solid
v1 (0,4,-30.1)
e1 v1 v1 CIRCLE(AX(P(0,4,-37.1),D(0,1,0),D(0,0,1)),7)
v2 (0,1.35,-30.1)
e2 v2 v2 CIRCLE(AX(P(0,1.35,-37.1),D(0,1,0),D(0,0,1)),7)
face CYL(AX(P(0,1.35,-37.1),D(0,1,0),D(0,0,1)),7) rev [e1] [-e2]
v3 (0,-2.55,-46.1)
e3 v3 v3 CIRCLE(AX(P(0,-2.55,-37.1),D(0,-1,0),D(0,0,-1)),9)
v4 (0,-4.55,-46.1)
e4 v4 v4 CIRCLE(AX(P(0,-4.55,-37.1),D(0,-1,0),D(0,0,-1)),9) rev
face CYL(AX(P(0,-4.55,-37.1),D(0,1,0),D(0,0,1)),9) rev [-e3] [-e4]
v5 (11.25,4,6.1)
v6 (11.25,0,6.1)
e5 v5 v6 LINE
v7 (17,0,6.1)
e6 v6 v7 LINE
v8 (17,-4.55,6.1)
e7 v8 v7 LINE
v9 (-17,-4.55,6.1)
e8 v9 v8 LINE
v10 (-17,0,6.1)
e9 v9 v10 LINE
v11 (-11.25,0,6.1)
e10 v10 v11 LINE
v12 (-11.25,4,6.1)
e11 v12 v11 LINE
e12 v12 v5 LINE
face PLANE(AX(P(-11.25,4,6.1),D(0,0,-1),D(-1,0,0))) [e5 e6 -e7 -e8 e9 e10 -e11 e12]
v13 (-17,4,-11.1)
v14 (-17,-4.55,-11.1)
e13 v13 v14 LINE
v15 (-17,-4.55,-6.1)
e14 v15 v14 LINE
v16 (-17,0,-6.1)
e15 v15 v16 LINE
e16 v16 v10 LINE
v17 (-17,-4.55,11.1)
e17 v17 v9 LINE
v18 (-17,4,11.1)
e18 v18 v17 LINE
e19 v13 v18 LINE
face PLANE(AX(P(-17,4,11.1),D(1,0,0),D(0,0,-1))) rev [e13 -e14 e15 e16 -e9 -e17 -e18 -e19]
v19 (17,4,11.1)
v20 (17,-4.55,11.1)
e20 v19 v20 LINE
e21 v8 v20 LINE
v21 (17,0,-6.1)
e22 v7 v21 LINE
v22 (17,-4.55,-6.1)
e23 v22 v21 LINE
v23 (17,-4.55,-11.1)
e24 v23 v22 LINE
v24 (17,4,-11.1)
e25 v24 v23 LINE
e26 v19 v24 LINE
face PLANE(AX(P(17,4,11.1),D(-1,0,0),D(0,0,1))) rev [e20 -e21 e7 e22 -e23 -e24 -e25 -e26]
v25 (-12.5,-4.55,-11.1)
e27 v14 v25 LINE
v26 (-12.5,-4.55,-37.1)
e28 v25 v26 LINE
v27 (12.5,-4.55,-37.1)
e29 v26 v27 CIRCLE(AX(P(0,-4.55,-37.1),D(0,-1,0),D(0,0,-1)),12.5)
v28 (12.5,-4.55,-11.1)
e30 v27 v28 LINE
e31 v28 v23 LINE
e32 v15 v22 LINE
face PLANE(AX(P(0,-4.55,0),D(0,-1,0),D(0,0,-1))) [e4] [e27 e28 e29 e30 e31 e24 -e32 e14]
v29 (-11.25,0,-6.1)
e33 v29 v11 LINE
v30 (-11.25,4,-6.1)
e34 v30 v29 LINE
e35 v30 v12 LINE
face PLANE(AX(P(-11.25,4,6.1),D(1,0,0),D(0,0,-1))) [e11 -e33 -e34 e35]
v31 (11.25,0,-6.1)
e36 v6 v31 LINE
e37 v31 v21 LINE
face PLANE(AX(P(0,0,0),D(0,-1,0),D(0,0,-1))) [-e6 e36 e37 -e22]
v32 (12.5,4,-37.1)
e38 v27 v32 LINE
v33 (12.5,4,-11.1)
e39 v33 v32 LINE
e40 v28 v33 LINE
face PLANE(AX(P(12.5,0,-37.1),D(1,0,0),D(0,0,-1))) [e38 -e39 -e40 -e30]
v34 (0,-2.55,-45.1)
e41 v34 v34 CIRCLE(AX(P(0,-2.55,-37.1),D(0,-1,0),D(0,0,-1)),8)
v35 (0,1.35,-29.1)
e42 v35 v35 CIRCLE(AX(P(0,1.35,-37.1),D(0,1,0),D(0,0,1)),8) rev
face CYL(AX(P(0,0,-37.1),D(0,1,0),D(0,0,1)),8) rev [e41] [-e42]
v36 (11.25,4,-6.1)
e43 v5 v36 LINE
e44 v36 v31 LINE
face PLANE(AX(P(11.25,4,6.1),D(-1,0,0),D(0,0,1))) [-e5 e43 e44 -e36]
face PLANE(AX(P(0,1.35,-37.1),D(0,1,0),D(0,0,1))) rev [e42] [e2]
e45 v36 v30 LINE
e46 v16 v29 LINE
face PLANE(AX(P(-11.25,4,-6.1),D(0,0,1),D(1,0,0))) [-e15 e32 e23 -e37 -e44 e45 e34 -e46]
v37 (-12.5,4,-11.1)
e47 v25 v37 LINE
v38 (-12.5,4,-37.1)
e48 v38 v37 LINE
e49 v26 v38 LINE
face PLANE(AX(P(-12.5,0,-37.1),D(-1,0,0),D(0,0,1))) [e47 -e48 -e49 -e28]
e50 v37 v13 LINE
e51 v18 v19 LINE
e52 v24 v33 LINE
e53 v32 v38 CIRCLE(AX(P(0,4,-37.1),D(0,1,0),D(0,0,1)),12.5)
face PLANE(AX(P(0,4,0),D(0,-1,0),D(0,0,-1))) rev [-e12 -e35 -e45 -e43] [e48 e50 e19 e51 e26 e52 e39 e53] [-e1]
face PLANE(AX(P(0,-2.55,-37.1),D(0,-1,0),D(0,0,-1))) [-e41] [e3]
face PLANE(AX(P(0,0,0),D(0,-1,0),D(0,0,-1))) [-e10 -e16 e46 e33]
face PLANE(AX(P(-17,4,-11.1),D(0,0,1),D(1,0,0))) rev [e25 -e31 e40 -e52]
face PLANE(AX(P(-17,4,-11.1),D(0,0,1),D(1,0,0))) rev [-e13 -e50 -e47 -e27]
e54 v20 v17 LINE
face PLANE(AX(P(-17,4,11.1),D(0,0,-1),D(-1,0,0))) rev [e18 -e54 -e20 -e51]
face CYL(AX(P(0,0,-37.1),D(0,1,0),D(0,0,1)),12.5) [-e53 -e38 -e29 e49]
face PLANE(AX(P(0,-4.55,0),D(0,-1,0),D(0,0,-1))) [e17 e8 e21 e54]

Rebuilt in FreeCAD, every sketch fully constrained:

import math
import FreeCAD as App
import Part
import Sketcher
Q = App.Units.Quantity

doc = App.newDocument("Part")
body = doc.addObject("PartDesign::Body", "Body")

# Sketch on XZ plane
sketch1 = doc.addObject("Sketcher::SketchObject", "Sketch")
body.addObject(sketch1)
sketch1.AttachmentSupport = (doc.XZ_Plane, [""])
sketch1.MapMode = "FlatFace"
sketch1.addGeometry([
    Part.LineSegment(App.Vector(-17, -11, 0), App.Vector(-17, 11, 0)),  # 0
    Part.LineSegment(App.Vector(-17, 11, 0), App.Vector(17, 11, 0)),  # 1
    Part.LineSegment(App.Vector(17, 11, 0), App.Vector(17, -11, 0)),  # 2
    Part.LineSegment(App.Vector(17, -11, 0), App.Vector(-17, -11, 0)),  # 3
    Part.LineSegment(App.Vector(11, 6, 0), App.Vector(-11, 6, 0)),  # 4
    Part.LineSegment(App.Vector(-11, 6, 0), App.Vector(-11, -6, 0)),  # 5
    Part.LineSegment(App.Vector(-11, -6, 0), App.Vector(11, -6, 0)),  # 6
    Part.LineSegment(App.Vector(11, -6, 0), App.Vector(11, 6, 0)),  # 7
], False)
sketch1.addConstraint([
    Sketcher.Constraint("Coincident", 0, 2, 1, 1),
    Sketcher.Constraint("Coincident", 1, 2, 2, 1),
    Sketcher.Constraint("Coincident", 2, 2, 3, 1),
    Sketcher.Constraint("Coincident", 3, 2, 0, 1),
    Sketcher.Constraint("Coincident", 4, 2, 5, 1),
    Sketcher.Constraint("Coincident", 5, 2, 6, 1),
    Sketcher.Constraint("Coincident", 6, 2, 7, 1),
    Sketcher.Constraint("Coincident", 7, 2, 4, 1),
    Sketcher.Constraint("Vertical", 0),
    Sketcher.Constraint("Horizontal", 1),
    Sketcher.Constraint("Vertical", 2),
    Sketcher.Constraint("Horizontal", 3),
    Sketcher.Constraint("Horizontal", 4),
    Sketcher.Constraint("Vertical", 5),
    Sketcher.Constraint("Horizontal", 6),
    Sketcher.Constraint("Vertical", 7),
    Sketcher.Constraint("Symmetric", 0, 2, 2, 2, -1, 1),
    Sketcher.Constraint("Symmetric", 4, 2, 6, 2, -1, 1),
    Sketcher.Constraint("DistanceX", 1, 1, 1, 2, Q("34 mm")),
    Sketcher.Constraint("DistanceX", 4, 2, 4, 1, Q("22.5 mm")),
    Sketcher.Constraint("DistanceY", 0, 1, 0, 2, Q("22.2 mm")),
    Sketcher.Constraint("DistanceY", 5, 2, 5, 1, Q("12.2 mm")),
])
pad1 = doc.addObject("PartDesign::Pad", "Pad")
body.addObject(pad1)
pad1.Profile = sketch1
pad1.Length = 4
pad1.Reversed = True

# Sketch on XZ plane
sketch2 = doc.addObject("Sketcher::SketchObject", "Sketch001")
body.addObject(sketch2)
sketch2.AttachmentSupport = (doc.XZ_Plane, [""])
sketch2.MapMode = "FlatFace"
sketch2.AttachmentOffset = App.Placement(App.Vector(0, 0, -4), App.Rotation())
sketch2.addGeometry([
    Part.LineSegment(App.Vector(-12, -37, 0), App.Vector(-12, -11, 0)),  # 0
    Part.LineSegment(App.Vector(-12, -11, 0), App.Vector(12, -11, 0)),  # 1
    Part.LineSegment(App.Vector(12, -11, 0), App.Vector(12, -37, 0)),  # 2
    Part.ArcOfCircle(Part.Circle(App.Vector(0, -37, 0), App.Vector(0, 0, 1), 12), math.radians(180), math.radians(360)),  # 3
    Part.Circle(App.Vector(0, -37, 0), App.Vector(0, 0, 1), 8),  # 4
], False)
sketch2.addConstraint([
    Sketcher.Constraint("Coincident", 0, 2, 1, 1),
    Sketcher.Constraint("Coincident", 1, 2, 2, 1),
    Sketcher.Constraint("Tangent", 2, 2, 3, 2),
    Sketcher.Constraint("Tangent", 3, 1, 0, 1),
    Sketcher.Constraint("Vertical", 0),
    Sketcher.Constraint("Horizontal", 1),
    Sketcher.Constraint("Vertical", 2),
    Sketcher.Constraint("Coincident", 4, 3, 3, 3),
    Sketcher.Constraint("PointOnObject", 3, 3, -2),
    Sketcher.Constraint("Diameter", 4, Q("16 mm")),
    Sketcher.Constraint("Radius", 3, Q("12.5 mm")),
    Sketcher.Constraint("DistanceY", 0, 1, 0, 2, Q("26 mm")),
    Sketcher.Constraint("DistanceY", 3, 3, -1, 1, Q("37.1 mm")),
])
pad2 = doc.addObject("PartDesign::Pad", "Pad001")
body.addObject(pad2)
pad2.Profile = sketch2
pad2.Length = 4

# Sketch on XZ plane
sketch3 = doc.addObject("Sketcher::SketchObject", "Sketch002")
body.addObject(sketch3)
sketch3.AttachmentSupport = (doc.XZ_Plane, [""])
sketch3.MapMode = "FlatFace"
sketch3.addGeometry([
    Part.Circle(App.Vector(0, -37, 0), App.Vector(0, 0, 1), 9),
    Part.Circle(App.Vector(0, -37, 0), App.Vector(0, 0, 1), 8),
], False)
sketch3.addConstraint([
    Sketcher.Constraint("Coincident", 1, 3, 0, 3),
    Sketcher.Constraint("PointOnObject", 0, 3, -2),
    Sketcher.Constraint("Diameter", 0, Q("18 mm")),
    Sketcher.Constraint("Diameter", 1, Q("16 mm")),
    Sketcher.Constraint("DistanceY", 0, 3, -1, 1, Q("37.1 mm")),
])
pad3 = doc.addObject("PartDesign::Pad", "Pad002")
body.addObject(pad3)
pad3.Profile = sketch3
pad3.Length = 2.55

# Sketch on XZ plane
sketch4 = doc.addObject("Sketcher::SketchObject", "Sketch003")
body.addObject(sketch4)
sketch4.AttachmentSupport = (doc.XZ_Plane, [""])
sketch4.MapMode = "FlatFace"
sketch4.addGeometry([
    Part.LineSegment(App.Vector(12.5, -11.1, 0), App.Vector(17, -11.1, 0)),  # 0
    Part.LineSegment(App.Vector(17, -11.1, 0), App.Vector(17, -6.1, 0)),  # 1
    Part.LineSegment(App.Vector(17, -6.1, 0), App.Vector(-17, -6.1, 0)),  # 2
    Part.LineSegment(App.Vector(-17, -6.1, 0), App.Vector(-17, -11.1, 0)),  # 3
    Part.LineSegment(App.Vector(-17, -11.1, 0), App.Vector(-12.5, -11.1, 0)),  # 4
    Part.LineSegment(App.Vector(-12.5, -11.1, 0), App.Vector(-12.5, -37.1, 0)),  # 5
    Part.ArcOfCircle(Part.Circle(App.Vector(0, -37.1, 0), App.Vector(0, 0, 1), 12.5), math.radians(180), math.radians(360)),  # 6
    Part.LineSegment(App.Vector(12.5, -37.1, 0), App.Vector(12.5, -11.1, 0)),  # 7
    Part.Circle(App.Vector(0, -37.1, 0), App.Vector(0, 0, 1), 9),  # 8
    Part.LineSegment(App.Vector(17, 6.1, 0), App.Vector(17, 11.1, 0)),  # 9
    Part.LineSegment(App.Vector(17, 11.1, 0), App.Vector(-17, 11.1, 0)),  # 10
    Part.LineSegment(App.Vector(-17, 11.1, 0), App.Vector(-17, 6.1, 0)),  # 11
    Part.LineSegment(App.Vector(-17, 6.1, 0), App.Vector(17, 6.1, 0)),  # 12
], False)
sketch4.addConstraint([
    Sketcher.Constraint("Coincident", 0, 2, 1, 1),
    Sketcher.Constraint("Coincident", 1, 2, 2, 1),
    Sketcher.Constraint("Coincident", 2, 2, 3, 1),
    Sketcher.Constraint("Coincident", 3, 2, 4, 1),
    Sketcher.Constraint("Coincident", 4, 2, 5, 1),
    Sketcher.Constraint("Tangent", 5, 2, 6, 1),
    Sketcher.Constraint("Tangent", 6, 2, 7, 1),
    Sketcher.Constraint("Coincident", 7, 2, 0, 1),
    Sketcher.Constraint("Coincident", 9, 2, 10, 1),
    Sketcher.Constraint("Coincident", 10, 2, 11, 1),
    Sketcher.Constraint("Coincident", 11, 2, 12, 1),
    Sketcher.Constraint("Coincident", 12, 2, 9, 1),
    Sketcher.Constraint("Horizontal", 0),
    Sketcher.Constraint("Vertical", 1),
    Sketcher.Constraint("Horizontal", 2),
    Sketcher.Constraint("Vertical", 3),
    Sketcher.Constraint("Horizontal", 4),
    Sketcher.Constraint("Vertical", 5),
    Sketcher.Constraint("Vertical", 7),
    Sketcher.Constraint("Vertical", 9),
    Sketcher.Constraint("Horizontal", 10),
    Sketcher.Constraint("Vertical", 11),
    Sketcher.Constraint("Horizontal", 12),
    Sketcher.Constraint("Coincident", 8, 3, 6, 3),
    Sketcher.Constraint("Symmetric", 3, 2, 9, 2, -1, 1),
    Sketcher.Constraint("Symmetric", 0, 2, 10, 2, -1, 1),
    Sketcher.Constraint("Symmetric", 2, 2, 11, 2, -1),
    Sketcher.Constraint("PointOnObject", 6, 3, -2),
    Sketcher.Constraint("Diameter", 8, Q("18 mm")),
    Sketcher.Constraint("Radius", 6, Q("12.5 mm")),
    Sketcher.Constraint("DistanceX", 2, 2, 2, 1, Q("34 mm")),
    Sketcher.Constraint("DistanceY", 1, 1, 1, 2, Q("5 mm")),
    Sketcher.Constraint("DistanceY", 5, 2, 5, 1, Q("26 mm")),
    Sketcher.Constraint("DistanceY", 6, 3, -1, 1, Q("37.1 mm")),
])
pad4 = doc.addObject("PartDesign::Pad", "Pad003")
body.addObject(pad4)
pad4.Profile = sketch4
pad4.Length = 4.55

# Sketch on XZ plane
sketch5 = doc.addObject("Sketcher::SketchObject", "Sketch004")
body.addObject(sketch5)
sketch5.AttachmentSupport = (doc.XZ_Plane, [""])
sketch5.MapMode = "FlatFace"
sketch5.AttachmentOffset = App.Placement(App.Vector(0, 0, -4), App.Rotation())
sketch5.addGeometry([
    Part.Circle(App.Vector(0, -37, 0), App.Vector(0, 0, 1), 8),
    Part.Circle(App.Vector(0, -37, 0), App.Vector(0, 0, 1), 7),
], False)
sketch5.addConstraint([
    Sketcher.Constraint("Coincident", 1, 3, 0, 3),
    Sketcher.Constraint("PointOnObject", 0, 3, -2),
    Sketcher.Constraint("Diameter", 0, Q("16 mm")),
    Sketcher.Constraint("Diameter", 1, Q("14 mm")),
    Sketcher.Constraint("DistanceY", 0, 3, -1, 1, Q("37.1 mm")),
])
pad5 = doc.addObject("PartDesign::Pad", "Pad004")
body.addObject(pad5)
pad5.Profile = sketch5
pad5.Length = 2.65

doc.recompute()
